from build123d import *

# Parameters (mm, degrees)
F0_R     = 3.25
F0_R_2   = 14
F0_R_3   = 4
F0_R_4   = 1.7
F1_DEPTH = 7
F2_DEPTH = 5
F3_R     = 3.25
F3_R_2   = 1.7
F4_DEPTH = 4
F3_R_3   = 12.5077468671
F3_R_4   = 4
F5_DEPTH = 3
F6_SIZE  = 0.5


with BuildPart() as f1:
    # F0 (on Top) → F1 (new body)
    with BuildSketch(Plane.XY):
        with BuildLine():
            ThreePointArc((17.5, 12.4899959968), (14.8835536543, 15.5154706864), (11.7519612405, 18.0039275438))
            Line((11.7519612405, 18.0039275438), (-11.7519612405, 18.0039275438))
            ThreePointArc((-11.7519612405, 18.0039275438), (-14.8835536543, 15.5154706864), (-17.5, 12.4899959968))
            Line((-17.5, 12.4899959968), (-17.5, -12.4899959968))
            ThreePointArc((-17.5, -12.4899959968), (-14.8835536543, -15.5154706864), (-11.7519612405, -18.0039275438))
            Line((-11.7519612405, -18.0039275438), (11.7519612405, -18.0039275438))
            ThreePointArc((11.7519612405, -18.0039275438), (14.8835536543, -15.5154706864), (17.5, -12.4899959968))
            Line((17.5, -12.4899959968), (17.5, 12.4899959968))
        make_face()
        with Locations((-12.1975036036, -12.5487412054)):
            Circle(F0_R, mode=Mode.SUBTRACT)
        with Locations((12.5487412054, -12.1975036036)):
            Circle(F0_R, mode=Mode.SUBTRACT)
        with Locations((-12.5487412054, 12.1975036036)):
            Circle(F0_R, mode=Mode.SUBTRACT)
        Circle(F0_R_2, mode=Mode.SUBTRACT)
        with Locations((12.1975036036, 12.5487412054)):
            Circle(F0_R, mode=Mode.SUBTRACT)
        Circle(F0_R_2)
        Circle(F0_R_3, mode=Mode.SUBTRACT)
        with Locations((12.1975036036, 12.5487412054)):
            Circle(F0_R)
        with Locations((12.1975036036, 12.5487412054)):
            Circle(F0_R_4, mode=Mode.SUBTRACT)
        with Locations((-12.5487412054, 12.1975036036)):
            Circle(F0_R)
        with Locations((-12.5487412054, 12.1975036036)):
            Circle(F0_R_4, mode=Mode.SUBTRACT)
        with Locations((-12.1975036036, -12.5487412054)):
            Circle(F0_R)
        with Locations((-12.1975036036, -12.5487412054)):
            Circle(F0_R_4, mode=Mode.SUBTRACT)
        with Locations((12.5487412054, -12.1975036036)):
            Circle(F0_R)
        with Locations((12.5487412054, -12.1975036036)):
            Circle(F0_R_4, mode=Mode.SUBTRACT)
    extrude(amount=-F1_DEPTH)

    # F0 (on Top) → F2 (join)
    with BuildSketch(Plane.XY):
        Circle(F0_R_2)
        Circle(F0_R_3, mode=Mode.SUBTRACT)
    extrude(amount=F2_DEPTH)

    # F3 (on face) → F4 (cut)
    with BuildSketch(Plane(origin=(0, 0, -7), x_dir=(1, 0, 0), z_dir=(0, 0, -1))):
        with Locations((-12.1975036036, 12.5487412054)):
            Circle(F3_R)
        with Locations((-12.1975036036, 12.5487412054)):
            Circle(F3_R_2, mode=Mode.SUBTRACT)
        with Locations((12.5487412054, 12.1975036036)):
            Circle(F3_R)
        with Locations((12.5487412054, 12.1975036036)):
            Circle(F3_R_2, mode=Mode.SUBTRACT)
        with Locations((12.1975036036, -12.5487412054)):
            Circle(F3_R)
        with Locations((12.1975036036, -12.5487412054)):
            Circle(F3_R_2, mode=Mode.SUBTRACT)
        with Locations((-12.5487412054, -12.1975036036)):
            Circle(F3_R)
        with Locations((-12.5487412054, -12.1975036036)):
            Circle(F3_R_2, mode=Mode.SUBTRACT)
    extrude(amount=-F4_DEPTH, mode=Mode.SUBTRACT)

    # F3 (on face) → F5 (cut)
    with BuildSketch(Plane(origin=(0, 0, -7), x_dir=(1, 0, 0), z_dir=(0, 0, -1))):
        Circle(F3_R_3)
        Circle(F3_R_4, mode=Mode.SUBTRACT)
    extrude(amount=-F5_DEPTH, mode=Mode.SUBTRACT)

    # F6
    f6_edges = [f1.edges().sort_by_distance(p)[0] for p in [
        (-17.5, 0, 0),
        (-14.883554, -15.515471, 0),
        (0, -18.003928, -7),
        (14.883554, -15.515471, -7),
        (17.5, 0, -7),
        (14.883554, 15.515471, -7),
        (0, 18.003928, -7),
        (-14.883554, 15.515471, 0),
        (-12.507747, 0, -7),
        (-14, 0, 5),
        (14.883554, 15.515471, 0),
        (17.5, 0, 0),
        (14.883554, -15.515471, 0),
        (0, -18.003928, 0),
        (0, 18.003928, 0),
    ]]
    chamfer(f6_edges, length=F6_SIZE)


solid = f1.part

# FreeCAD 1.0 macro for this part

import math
import FreeCAD as App
import Part
import Sketcher


def edges_at(feature, points):
    """Names of the edges that pass closest to the given points."""
    edges = feature.Shape.Edges
    near = lambda p: min(range(len(edges)), key=lambda i: edges[i].distToShape(Part.Vertex(*p))[0])
    return sorted({f"Edge{near(p) + 1}" for p in points})

doc = App.newDocument("Part")
params = doc.addObject("Spreadsheet::Sheet", "Params")
for row, (alias, value) in enumerate([
    ("sketch1_diameter", "8 mm"),
    ("sketch1_diameter2", "3.4 mm"),
    ("sketch1_radius", "21.5 mm"),
    ("pad1_length", "7 mm"),
    ("sketch2_diameter", "28 mm"),
    ("sketch2_diameter2", "8 mm"),
    ("pad2_length", "5 mm"),
    ("sketch3_diameter", "6.5 mm"),
    ("sketch3_diameter2", "3.4 mm"),
    ("pocket1_length", "4 mm"),
    ("sketch4_diameter", "8 mm"),
    ("pocket2_length", "3 mm"),
    ("chamfer_size", "0.5 mm"),
], start=1):
    params.set(f"A{row}", alias)
    params.set(f"B{row}", "=" + value)
    params.setAlias(f"B{row}", alias)

body = doc.addObject("PartDesign::Body", "Body")

sketch1 = body.newObject("Sketcher::SketchObject", "Sketch")
sketch1.AttachmentSupport = (doc.getObject("XY_Plane"), [""])
sketch1.MapMode = "FlatFace"
sketch1.addGeometry(Part.ArcOfCircle(Part.Circle(App.Vector(0, 0, 0), App.Vector(0, 0, 1), 21.5), math.radians(36), math.radians(57)), False)
sketch1.addGeometry(Part.LineSegment(App.Vector(11.8, 18, 0), App.Vector(-11.8, 18, 0)), False)
sketch1.addGeometry(Part.ArcOfCircle(Part.Circle(App.Vector(0, 0, 0), App.Vector(0, 0, 1), 21.5), math.radians(123), math.radians(144)), False)
sketch1.addGeometry(Part.LineSegment(App.Vector(-17.5, 12.5, 0), App.Vector(-17.5, -12.5, 0)), False)
sketch1.addGeometry(Part.ArcOfCircle(Part.Circle(App.Vector(0, 0, 0), App.Vector(0, 0, 1), 21.5), math.radians(-144), math.radians(-123)), False)
sketch1.addGeometry(Part.LineSegment(App.Vector(-11.8, -18, 0), App.Vector(11.8, -18, 0)), False)
sketch1.addGeometry(Part.ArcOfCircle(Part.Circle(App.Vector(0, 0, 0), App.Vector(0, 0, 1), 21.5), math.radians(-57), math.radians(-36)), False)
sketch1.addGeometry(Part.LineSegment(App.Vector(17.5, -12.5, 0), App.Vector(17.5, 12.5, 0)), False)
sketch1.addGeometry(Part.Circle(App.Vector(-12.2, -12.5, 0), App.Vector(0, 0, 1), 1.7), False)
sketch1.addGeometry(Part.Circle(App.Vector(12.5, -12.2, 0), App.Vector(0, 0, 1), 1.7), False)
sketch1.addGeometry(Part.Circle(App.Vector(-12.5, 12.2, 0), App.Vector(0, 0, 1), 1.7), False)
sketch1.addGeometry(Part.Circle(App.Vector(0, 0, 0), App.Vector(0, 0, 1), 4), False)
sketch1.addGeometry(Part.Circle(App.Vector(12.2, 12.5, 0), App.Vector(0, 0, 1), 1.7), False)
sketch1.addConstraint(Sketcher.Constraint("Coincident", 0, 2, 1, 1))
sketch1.addConstraint(Sketcher.Constraint("Coincident", 1, 2, 2, 1))
sketch1.addConstraint(Sketcher.Constraint("Coincident", 2, 2, 3, 1))
sketch1.addConstraint(Sketcher.Constraint("Coincident", 3, 2, 4, 1))
sketch1.addConstraint(Sketcher.Constraint("Coincident", 4, 2, 5, 1))
sketch1.addConstraint(Sketcher.Constraint("Coincident", 5, 2, 6, 1))
sketch1.addConstraint(Sketcher.Constraint("Coincident", 6, 2, 7, 1))
sketch1.addConstraint(Sketcher.Constraint("Coincident", 7, 2, 0, 1))
sketch1.addConstraint(Sketcher.Constraint("Horizontal", 1))
sketch1.addConstraint(Sketcher.Constraint("Vertical", 3))
sketch1.addConstraint(Sketcher.Constraint("Horizontal", 5))
sketch1.addConstraint(Sketcher.Constraint("Vertical", 7))
sketch1.addConstraint(Sketcher.Constraint("Coincident", 0, 3, -1, 1))
sketch1.addConstraint(Sketcher.Constraint("Coincident", 2, 3, -1, 1))
sketch1.addConstraint(Sketcher.Constraint("Coincident", 4, 3, -1, 1))
sketch1.addConstraint(Sketcher.Constraint("Coincident", 6, 3, -1, 1))
sketch1.addConstraint(Sketcher.Constraint("Coincident", 11, 3, -1, 1))
sketch1.addConstraint(Sketcher.Constraint("Equal", 0, 2))
sketch1.addConstraint(Sketcher.Constraint("Equal", 2, 4))
sketch1.addConstraint(Sketcher.Constraint("Equal", 4, 6))
sketch1.addConstraint(Sketcher.Constraint("Equal", 8, 9))
sketch1.addConstraint(Sketcher.Constraint("Equal", 9, 10))
sketch1.addConstraint(Sketcher.Constraint("Equal", 10, 12))
sketch1.addConstraint(Sketcher.Constraint("Symmetric", 9, 3, 10, 3, -1, 1))
sketch1.addConstraint(Sketcher.Constraint("Symmetric", 8, 3, 12, 3, -1, 1))
sketch1.addConstraint(Sketcher.Constraint("Horizontal", 3, 2, 6, 2))
sketch1.addConstraint(Sketcher.Constraint("Vertical", 1, 2, 4, 2))
sketch1.addConstraint(Sketcher.Constraint("Diameter", 11, 8.0))
sketch1.addConstraint(Sketcher.Constraint("Diameter", 8, 3.4))
sketch1.addConstraint(Sketcher.Constraint("Radius", 0, 21.5))
sketch1.addConstraint(Sketcher.Constraint("DistanceX", 2, 2, -1, 1, 17.5))
sketch1.addConstraint(Sketcher.Constraint("DistanceX", 1, 2, 1, 1, 23.503922))
sketch1.addConstraint(Sketcher.Constraint("DistanceY", 8, 3, -1, 1, 12.548741))
sketch1.addConstraint(Sketcher.Constraint("DistanceX", -1, 1, 9, 3, 12.548741))
sketch1.addConstraint(Sketcher.Constraint("DistanceX", 8, 3, -1, 1, 12.197504))
sketch1.addConstraint(Sketcher.Constraint("DistanceY", 9, 3, -1, 1, 12.197504))
sketch1.setExpression("Constraints[27]", "Params.sketch1_diameter")
sketch1.setExpression("Constraints[28]", "Params.sketch1_diameter2")
sketch1.setExpression("Constraints[29]", "Params.sketch1_radius")
pad1 = body.newObject("PartDesign::Pad", "Pad")
pad1.Profile = sketch1
pad1.setExpression("Length", "Params.pad1_length")
pad1.Reversed = True

sketch2 = body.newObject("Sketcher::SketchObject", "Sketch001")
sketch2.AttachmentSupport = (doc.getObject("XY_Plane"), [""])
sketch2.MapMode = "FlatFace"
sketch2.addGeometry(Part.Circle(App.Vector(0, 0, 0), App.Vector(0, 0, 1), 14), False)
sketch2.addGeometry(Part.Circle(App.Vector(0, 0, 0), App.Vector(0, 0, 1), 4), False)
sketch2.addConstraint(Sketcher.Constraint("Coincident", 0, 3, -1, 1))
sketch2.addConstraint(Sketcher.Constraint("Coincident", 1, 3, -1, 1))
sketch2.addConstraint(Sketcher.Constraint("Diameter", 0, 28.0))
sketch2.addConstraint(Sketcher.Constraint("Diameter", 1, 8.0))
sketch2.setExpression("Constraints[2]", "Params.sketch2_diameter")
sketch2.setExpression("Constraints[3]", "Params.sketch2_diameter2")
pad2 = body.newObject("PartDesign::Pad", "Pad001")
pad2.Profile = sketch2
pad2.setExpression("Length", "Params.pad2_length")

sketch3 = body.newObject("Sketcher::SketchObject", "Sketch002")
sketch3.AttachmentSupport = (doc.getObject("XY_Plane"), [""])
sketch3.MapMode = "FlatFace"
sketch3.AttachmentOffset = App.Placement(App.Vector(0, 0, -7), App.Rotation())
sketch3.addGeometry(Part.Circle(App.Vector(-12.2, -12.5, 0), App.Vector(0, 0, 1), 3.2), False)
sketch3.addGeometry(Part.Circle(App.Vector(-12.2, -12.5, 0), App.Vector(0, 0, 1), 1.7), False)
sketch3.addGeometry(Part.Circle(App.Vector(12.5, -12.2, 0), App.Vector(0, 0, 1), 3.2), False)
sketch3.addGeometry(Part.Circle(App.Vector(12.5, -12.2, 0), App.Vector(0, 0, 1), 1.7), False)
sketch3.addGeometry(Part.Circle(App.Vector(12.2, 12.5, 0), App.Vector(0, 0, 1), 3.2), False)
sketch3.addGeometry(Part.Circle(App.Vector(12.2, 12.5, 0), App.Vector(0, 0, 1), 1.7), False)
sketch3.addGeometry(Part.Circle(App.Vector(-12.5, 12.2, 0), App.Vector(0, 0, 1), 3.2), False)
sketch3.addGeometry(Part.Circle(App.Vector(-12.5, 12.2, 0), App.Vector(0, 0, 1), 1.7), False)
sketch3.addConstraint(Sketcher.Constraint("Coincident", 1, 3, 0, 3))
sketch3.addConstraint(Sketcher.Constraint("Coincident", 3, 3, 2, 3))
sketch3.addConstraint(Sketcher.Constraint("Coincident", 5, 3, 4, 3))
sketch3.addConstraint(Sketcher.Constraint("Coincident", 7, 3, 6, 3))
sketch3.addConstraint(Sketcher.Constraint("Equal", 0, 2))
sketch3.addConstraint(Sketcher.Constraint("Equal", 1, 3))
sketch3.addConstraint(Sketcher.Constraint("Equal", 2, 4))
sketch3.addConstraint(Sketcher.Constraint("Equal", 3, 5))
sketch3.addConstraint(Sketcher.Constraint("Equal", 4, 6))
sketch3.addConstraint(Sketcher.Constraint("Equal", 5, 7))
sketch3.addConstraint(Sketcher.Constraint("Symmetric", 0, 3, 4, 3, -1, 1))
sketch3.addConstraint(Sketcher.Constraint("Symmetric", 2, 3, 6, 3, -1, 1))
sketch3.addConstraint(Sketcher.Constraint("Diameter", 0, 6.5))
sketch3.addConstraint(Sketcher.Constraint("Diameter", 1, 3.4))
sketch3.addConstraint(Sketcher.Constraint("DistanceY", 0, 3, -1, 1, 12.548741))
sketch3.addConstraint(Sketcher.Constraint("DistanceX", -1, 1, 2, 3, 12.548741))
sketch3.addConstraint(Sketcher.Constraint("DistanceX", 0, 3, -1, 1, 12.197504))
sketch3.addConstraint(Sketcher.Constraint("DistanceY", 2, 3, -1, 1, 12.197504))
sketch3.setExpression("Constraints[12]", "Params.sketch3_diameter")
sketch3.setExpression("Constraints[13]", "Params.sketch3_diameter2")
pocket1 = body.newObject("PartDesign::Pocket", "Pocket")
pocket1.Profile = sketch3
pocket1.setExpression("Length", "Params.pocket1_length")
pocket1.Reversed = True

sketch4 = body.newObject("Sketcher::SketchObject", "Sketch003")
sketch4.AttachmentSupport = (doc.getObject("XY_Plane"), [""])
sketch4.MapMode = "FlatFace"
sketch4.AttachmentOffset = App.Placement(App.Vector(0, 0, -7), App.Rotation())
sketch4.addGeometry(Part.Circle(App.Vector(0, 0, 0), App.Vector(0, 0, 1), 12.5), False)
sketch4.addGeometry(Part.Circle(App.Vector(0, 0, 0), App.Vector(0, 0, 1), 4), False)
sketch4.addConstraint(Sketcher.Constraint("Coincident", 0, 3, -1, 1))
sketch4.addConstraint(Sketcher.Constraint("Coincident", 1, 3, -1, 1))
sketch4.addConstraint(Sketcher.Constraint("Diameter", 1, 8.0))
sketch4.addConstraint(Sketcher.Constraint("Diameter", 0, 25.015494))
sketch4.setExpression("Constraints[2]", "Params.sketch4_diameter")
pocket2 = body.newObject("PartDesign::Pocket", "Pocket001")
pocket2.Profile = sketch4
pocket2.setExpression("Length", "Params.pocket2_length")
pocket2.Reversed = True
doc.recompute()

chamfer = body.newObject("PartDesign::Chamfer", "Chamfer")
chamfer.Base = (pocket2, edges_at(pocket2, [
    (-17.5, 0, 0),
    (-14.884, -15.515, 0),
    (0, -18.004, -7),
    (14.884, -15.515, -7),
    (17.5, 0, -7),
    (14.884, 15.515, -7),
    (0, 18.004, -7),
    (-14.884, 15.515, 0),
    (-12.508, 0, -7),
    (-14, 0, 5),
    (14.884, 15.515, 0),
    (17.5, 0, 0),
    (14.884, -15.515, 0),
    (0, -18.004, 0),
    (0, 18.004, 0),
]))
chamfer.setExpression("Size", "Params.chamfer_size")

doc.recompute()
